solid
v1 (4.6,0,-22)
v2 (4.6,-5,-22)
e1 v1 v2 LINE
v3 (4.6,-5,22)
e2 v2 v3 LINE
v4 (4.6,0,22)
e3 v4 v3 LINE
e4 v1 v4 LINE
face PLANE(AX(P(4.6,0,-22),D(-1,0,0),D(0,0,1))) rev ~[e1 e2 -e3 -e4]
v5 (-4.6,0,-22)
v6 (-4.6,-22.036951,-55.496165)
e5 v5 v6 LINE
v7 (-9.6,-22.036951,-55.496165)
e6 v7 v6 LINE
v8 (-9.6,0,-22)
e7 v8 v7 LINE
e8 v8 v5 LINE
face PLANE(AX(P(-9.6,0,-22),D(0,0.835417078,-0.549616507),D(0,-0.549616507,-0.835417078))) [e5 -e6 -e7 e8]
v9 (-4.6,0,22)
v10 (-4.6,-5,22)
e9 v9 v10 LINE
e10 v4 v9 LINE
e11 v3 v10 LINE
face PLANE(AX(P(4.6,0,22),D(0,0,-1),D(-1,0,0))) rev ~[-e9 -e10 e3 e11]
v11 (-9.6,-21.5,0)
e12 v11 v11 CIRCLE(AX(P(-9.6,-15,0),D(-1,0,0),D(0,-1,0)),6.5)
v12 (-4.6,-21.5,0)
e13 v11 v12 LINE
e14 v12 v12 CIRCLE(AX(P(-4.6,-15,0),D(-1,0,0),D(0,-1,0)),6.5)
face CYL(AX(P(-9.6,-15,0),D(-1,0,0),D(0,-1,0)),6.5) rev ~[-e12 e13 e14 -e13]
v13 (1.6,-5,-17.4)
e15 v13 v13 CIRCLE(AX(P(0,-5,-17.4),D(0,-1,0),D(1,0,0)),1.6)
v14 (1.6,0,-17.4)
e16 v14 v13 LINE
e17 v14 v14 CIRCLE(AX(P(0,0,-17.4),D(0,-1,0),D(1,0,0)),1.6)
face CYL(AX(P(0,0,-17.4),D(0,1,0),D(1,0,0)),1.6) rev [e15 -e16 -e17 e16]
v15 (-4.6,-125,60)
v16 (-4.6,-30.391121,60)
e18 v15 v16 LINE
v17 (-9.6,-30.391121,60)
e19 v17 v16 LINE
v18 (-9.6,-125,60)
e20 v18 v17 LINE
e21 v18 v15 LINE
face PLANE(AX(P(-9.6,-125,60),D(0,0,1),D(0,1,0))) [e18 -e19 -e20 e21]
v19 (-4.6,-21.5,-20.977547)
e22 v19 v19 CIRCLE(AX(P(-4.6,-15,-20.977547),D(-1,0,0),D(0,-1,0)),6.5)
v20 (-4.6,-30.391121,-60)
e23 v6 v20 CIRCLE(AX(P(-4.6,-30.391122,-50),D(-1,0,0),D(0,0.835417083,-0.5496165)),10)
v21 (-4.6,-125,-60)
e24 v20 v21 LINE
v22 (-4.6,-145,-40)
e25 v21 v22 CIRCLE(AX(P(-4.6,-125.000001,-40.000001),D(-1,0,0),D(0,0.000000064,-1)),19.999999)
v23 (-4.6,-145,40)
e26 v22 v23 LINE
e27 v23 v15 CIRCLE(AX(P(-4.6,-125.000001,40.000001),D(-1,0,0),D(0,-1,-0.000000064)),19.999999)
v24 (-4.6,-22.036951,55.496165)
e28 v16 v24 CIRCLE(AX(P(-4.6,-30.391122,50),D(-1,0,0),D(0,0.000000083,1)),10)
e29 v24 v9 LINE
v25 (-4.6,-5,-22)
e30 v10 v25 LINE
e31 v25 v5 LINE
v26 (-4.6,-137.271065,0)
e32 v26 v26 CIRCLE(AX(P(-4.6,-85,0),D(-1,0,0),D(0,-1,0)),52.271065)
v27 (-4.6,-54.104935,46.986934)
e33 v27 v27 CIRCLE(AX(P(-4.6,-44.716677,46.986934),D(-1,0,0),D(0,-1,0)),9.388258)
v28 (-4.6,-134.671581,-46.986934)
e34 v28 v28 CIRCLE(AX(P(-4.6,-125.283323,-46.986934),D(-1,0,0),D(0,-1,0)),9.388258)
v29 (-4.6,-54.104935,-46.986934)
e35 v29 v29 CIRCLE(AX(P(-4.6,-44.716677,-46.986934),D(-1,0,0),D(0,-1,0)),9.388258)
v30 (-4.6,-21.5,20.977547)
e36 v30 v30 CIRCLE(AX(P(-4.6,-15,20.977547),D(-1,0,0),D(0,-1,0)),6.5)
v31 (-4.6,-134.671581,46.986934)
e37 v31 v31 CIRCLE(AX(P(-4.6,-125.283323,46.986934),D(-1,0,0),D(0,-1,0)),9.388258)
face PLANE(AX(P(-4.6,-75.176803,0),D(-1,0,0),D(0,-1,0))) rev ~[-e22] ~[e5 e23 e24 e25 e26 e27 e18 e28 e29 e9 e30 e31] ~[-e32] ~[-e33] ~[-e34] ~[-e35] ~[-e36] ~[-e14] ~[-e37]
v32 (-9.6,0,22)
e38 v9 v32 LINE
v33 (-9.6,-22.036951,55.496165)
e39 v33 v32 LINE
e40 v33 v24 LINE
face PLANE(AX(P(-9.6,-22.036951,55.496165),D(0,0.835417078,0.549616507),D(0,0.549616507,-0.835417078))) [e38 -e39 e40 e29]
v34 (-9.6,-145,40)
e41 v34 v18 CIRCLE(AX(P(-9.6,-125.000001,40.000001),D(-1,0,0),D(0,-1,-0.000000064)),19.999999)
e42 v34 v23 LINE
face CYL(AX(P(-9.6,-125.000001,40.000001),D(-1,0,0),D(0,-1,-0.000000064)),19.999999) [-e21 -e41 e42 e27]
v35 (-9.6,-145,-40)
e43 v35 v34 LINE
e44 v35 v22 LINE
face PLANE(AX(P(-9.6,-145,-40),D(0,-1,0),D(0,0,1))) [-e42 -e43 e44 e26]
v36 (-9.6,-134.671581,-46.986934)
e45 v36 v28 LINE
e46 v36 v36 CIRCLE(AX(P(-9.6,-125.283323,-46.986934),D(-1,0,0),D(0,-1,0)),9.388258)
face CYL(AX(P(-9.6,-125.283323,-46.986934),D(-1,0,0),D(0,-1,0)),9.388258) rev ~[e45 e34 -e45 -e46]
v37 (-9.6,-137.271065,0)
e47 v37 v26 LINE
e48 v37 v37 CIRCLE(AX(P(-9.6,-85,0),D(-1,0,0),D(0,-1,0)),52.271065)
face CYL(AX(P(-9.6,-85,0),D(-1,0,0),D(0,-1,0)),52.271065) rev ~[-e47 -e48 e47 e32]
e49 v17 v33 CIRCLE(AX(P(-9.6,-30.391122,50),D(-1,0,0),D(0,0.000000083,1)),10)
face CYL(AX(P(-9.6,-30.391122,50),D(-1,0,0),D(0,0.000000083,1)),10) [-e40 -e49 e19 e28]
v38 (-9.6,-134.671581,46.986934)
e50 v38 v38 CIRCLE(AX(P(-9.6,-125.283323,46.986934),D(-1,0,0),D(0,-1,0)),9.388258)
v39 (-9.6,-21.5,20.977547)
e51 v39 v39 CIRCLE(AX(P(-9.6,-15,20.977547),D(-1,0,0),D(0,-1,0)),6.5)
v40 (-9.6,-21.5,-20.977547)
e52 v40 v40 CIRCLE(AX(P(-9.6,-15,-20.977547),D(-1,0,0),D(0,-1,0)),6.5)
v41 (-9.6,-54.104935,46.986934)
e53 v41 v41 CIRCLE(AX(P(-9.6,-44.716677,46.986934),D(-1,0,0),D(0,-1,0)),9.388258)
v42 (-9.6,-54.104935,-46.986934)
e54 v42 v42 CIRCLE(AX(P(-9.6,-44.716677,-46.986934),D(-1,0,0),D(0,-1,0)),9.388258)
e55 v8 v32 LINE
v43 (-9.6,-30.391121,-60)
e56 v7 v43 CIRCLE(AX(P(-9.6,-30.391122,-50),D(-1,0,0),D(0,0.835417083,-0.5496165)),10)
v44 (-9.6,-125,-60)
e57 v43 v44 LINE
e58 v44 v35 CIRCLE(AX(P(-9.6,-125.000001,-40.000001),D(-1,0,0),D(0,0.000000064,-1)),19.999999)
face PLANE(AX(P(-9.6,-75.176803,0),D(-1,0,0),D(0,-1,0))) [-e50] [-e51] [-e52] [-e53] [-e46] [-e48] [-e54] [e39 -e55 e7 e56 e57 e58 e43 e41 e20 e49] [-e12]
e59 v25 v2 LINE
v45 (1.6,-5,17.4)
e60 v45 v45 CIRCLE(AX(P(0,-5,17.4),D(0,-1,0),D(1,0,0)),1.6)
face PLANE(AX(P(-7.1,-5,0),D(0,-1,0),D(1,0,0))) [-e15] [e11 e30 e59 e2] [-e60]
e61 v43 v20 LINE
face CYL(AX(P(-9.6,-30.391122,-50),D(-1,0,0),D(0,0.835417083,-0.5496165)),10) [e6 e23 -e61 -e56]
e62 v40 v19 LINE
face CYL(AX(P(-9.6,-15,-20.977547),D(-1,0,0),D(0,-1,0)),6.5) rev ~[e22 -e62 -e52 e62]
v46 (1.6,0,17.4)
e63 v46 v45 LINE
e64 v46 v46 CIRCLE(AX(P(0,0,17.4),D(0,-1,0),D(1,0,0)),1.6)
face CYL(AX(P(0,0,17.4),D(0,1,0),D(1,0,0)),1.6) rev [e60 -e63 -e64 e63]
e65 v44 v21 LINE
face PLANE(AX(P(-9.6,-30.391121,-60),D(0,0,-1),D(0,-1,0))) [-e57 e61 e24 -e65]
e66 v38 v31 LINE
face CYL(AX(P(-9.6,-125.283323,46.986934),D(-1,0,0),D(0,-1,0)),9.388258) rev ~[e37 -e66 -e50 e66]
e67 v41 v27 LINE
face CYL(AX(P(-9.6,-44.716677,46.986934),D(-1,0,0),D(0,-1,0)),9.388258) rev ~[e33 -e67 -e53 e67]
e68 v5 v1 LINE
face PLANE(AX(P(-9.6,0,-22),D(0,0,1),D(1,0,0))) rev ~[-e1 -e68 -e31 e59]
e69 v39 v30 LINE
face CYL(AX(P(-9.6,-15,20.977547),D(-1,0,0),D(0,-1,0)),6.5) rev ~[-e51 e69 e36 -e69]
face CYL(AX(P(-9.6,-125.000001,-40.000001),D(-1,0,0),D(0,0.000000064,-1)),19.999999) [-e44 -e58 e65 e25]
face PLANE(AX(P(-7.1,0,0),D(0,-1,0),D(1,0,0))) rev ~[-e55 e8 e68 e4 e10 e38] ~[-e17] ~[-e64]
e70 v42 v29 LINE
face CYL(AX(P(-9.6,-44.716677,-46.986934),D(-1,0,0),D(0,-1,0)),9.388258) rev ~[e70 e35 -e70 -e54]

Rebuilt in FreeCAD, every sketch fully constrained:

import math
import FreeCAD as App
import Part
import Sketcher
Q = App.Units.Quantity

doc = App.newDocument("Part")
params = doc.addObject("Spreadsheet::Sheet", "Params")
for row, (alias, value) in enumerate([
    ("sketch1_diameter", "3.2 mm"),
    ("sketch1_height", "44 mm"),
    ("sketch1_width", "14.2 mm"),
    ("pad1_length", "5 mm"),
    ("sketch2_diameter", "13 mm"),
    ("sketch2_radius", "10 mm"),
    ("sketch2_radius2", "19.999999 mm"),
    ("sketch2_width", "5 mm"),
    ("sketch2_height", "44 mm"),
    ("pad2_length", "5 mm"),
], start=1):
    params.set(f"A{row}", alias)
    params.set(f"B{row}", "=" + value)
    params.setAlias(f"B{row}", alias)

body = doc.addObject("PartDesign::Body", "Body")

sketch1 = body.newObject("Sketcher::SketchObject", "Sketch")
sketch1.AttachmentSupport = (doc.getObject("XZ_Plane"), [""])
sketch1.MapMode = "FlatFace"
sketch1.addGeometry(Part.LineSegment(App.Vector(-9.6, 22, 0), App.Vector(-9.6, -22, 0)), False)
sketch1.addGeometry(Part.LineSegment(App.Vector(-9.6, -22, 0), App.Vector(4.6, -22, 0)), False)
sketch1.addGeometry(Part.LineSegment(App.Vector(4.6, -22, 0), App.Vector(4.6, 22, 0)), False)
sketch1.addGeometry(Part.LineSegment(App.Vector(4.6, 22, 0), App.Vector(-9.6, 22, 0)), False)
sketch1.addGeometry(Part.Circle(App.Vector(0, -17.4, 0), App.Vector(0, 0, 1), 1.6), False)
sketch1.addGeometry(Part.Circle(App.Vector(0, 17.4, 0), App.Vector(0, 0, 1), 1.6), False)
sketch1.addConstraint(Sketcher.Constraint("Coincident", 0, 2, 1, 1))
sketch1.addConstraint(Sketcher.Constraint("Coincident", 1, 2, 2, 1))
sketch1.addConstraint(Sketcher.Constraint("Coincident", 2, 2, 3, 1))
sketch1.addConstraint(Sketcher.Constraint("Coincident", 3, 2, 0, 1))
sketch1.addConstraint(Sketcher.Constraint("Vertical", 0))
sketch1.addConstraint(Sketcher.Constraint("Horizontal", 1))
sketch1.addConstraint(Sketcher.Constraint("Vertical", 2))
sketch1.addConstraint(Sketcher.Constraint("Horizontal", 3))
sketch1.addConstraint(Sketcher.Constraint("Equal", 4, 5))
sketch1.addConstraint(Sketcher.Constraint("Symmetric", 4, 3, 5, 3, -1, 1))
sketch1.addConstraint(Sketcher.Constraint("PointOnObject", 4, 3, -2))
sketch1.addConstraint(Sketcher.Constraint("Diameter", 4, Q("3.2 mm")))
sketch1.addConstraint(Sketcher.Constraint("DistanceY", 0, 2, 0, 1, Q("44 mm")))
sketch1.addConstraint(Sketcher.Constraint("DistanceX", 1, 1, 1, 2, Q("14.2 mm")))
sketch1.addConstraint(Sketcher.Constraint("DistanceY", 0, 2, -1, 1, Q("22 mm")))
sketch1.addConstraint(Sketcher.Constraint("DistanceY", 4, 3, -1, 1, Q("17.4 mm")))
sketch1.addConstraint(Sketcher.Constraint("DistanceX", 0, 2, -1, 1, Q("9.6 mm")))
sketch1.setExpression("Constraints[11]", "Params.sketch1_diameter")
sketch1.setExpression("Constraints[12]", "Params.sketch1_height")
sketch1.setExpression("Constraints[13]", "Params.sketch1_width")
pad1 = body.newObject("PartDesign::Pad", "Pad")
pad1.Profile = sketch1
pad1.setExpression("Length", "Params.pad1_length")

sketch2 = body.newObject("Sketcher::SketchObject", "Sketch001")
sketch2.AttachmentSupport = (doc.getObject("YZ_Plane"), [""])
sketch2.MapMode = "FlatFace"
sketch2.AttachmentOffset = App.Placement(App.Vector(0, 0, -9.6), App.Rotation())
sketch2.addGeometry(Part.LineSegment(App.Vector(-125, 60, 0), App.Vector(-30.391121, 60, 0)), False)
sketch2.addGeometry(Part.ArcOfCircle(Part.Circle(App.Vector(-30.391122, 50, 0), App.Vector(0, 0, 1), 10), math.radians(33.340707), math.radians(89.999995)), False)
sketch2.addGeometry(Part.LineSegment(App.Vector(-22.036951, 55.496165, 0), App.Vector(0, 22, 0)), False)
sketch2.addGeometry(Part.LineSegment(App.Vector(0, 22, 0), App.Vector(-5, 22, 0)), False)
sketch2.addGeometry(Part.LineSegment(App.Vector(-5, 22, 0), App.Vector(-5, -22, 0)), False)
sketch2.addGeometry(Part.LineSegment(App.Vector(-5, -22, 0), App.Vector(0, -22, 0)), False)
sketch2.addGeometry(Part.LineSegment(App.Vector(0, -22, 0), App.Vector(-22.036951, -55.496165, 0)), False)
sketch2.addGeometry(Part.ArcOfCircle(Part.Circle(App.Vector(-30.391122, -50, 0), App.Vector(0, 0, 1), 10), math.radians(-89.999995), math.radians(-33.340707)), False)
sketch2.addGeometry(Part.LineSegment(App.Vector(-30.391121, -60, 0), App.Vector(-125, -60, 0)), False)
sketch2.addGeometry(Part.ArcOfCircle(Part.Circle(App.Vector(-125.000001, -40.000001, 0), App.Vector(0, 0, 1), 19.999999), math.radians(179.999996), math.radians(270.000004)), False)
sketch2.addGeometry(Part.LineSegment(App.Vector(-145, -40, 0), App.Vector(-145, 40, 0)), False)
sketch2.addGeometry(Part.ArcOfCircle(Part.Circle(App.Vector(-125.000001, 40.000001, 0), App.Vector(0, 0, 1), 19.999999), math.radians(89.999996), math.radians(180.000004)), False)
sketch2.addGeometry(Part.Circle(App.Vector(-44.716677, -46.986934, 0), App.Vector(0, 0, 1), 9.388258), False)
sketch2.addGeometry(Part.Circle(App.Vector(-15, -20.977547, 0), App.Vector(0, 0, 1), 6.5), False)
sketch2.addGeometry(Part.Circle(App.Vector(-125.283323, -46.986934, 0), App.Vector(0, 0, 1), 9.388258), False)
sketch2.addGeometry(Part.Circle(App.Vector(-15, 0, 0), App.Vector(0, 0, 1), 6.5), False)
sketch2.addGeometry(Part.Circle(App.Vector(-15, 20.977547, 0), App.Vector(0, 0, 1), 6.5), False)
sketch2.addGeometry(Part.Circle(App.Vector(-44.716677, 46.986934, 0), App.Vector(0, 0, 1), 9.388258), False)
sketch2.addGeometry(Part.Circle(App.Vector(-85, 0, 0), App.Vector(0, 0, 1), 52.271065), False)
sketch2.addGeometry(Part.Circle(App.Vector(-125.283323, 46.986934, 0), App.Vector(0, 0, 1), 9.388258), False)
sketch2.addConstraint(Sketcher.Constraint("Tangent", 0, 2, 1, 2))
sketch2.addConstraint(Sketcher.Constraint("Tangent", 1, 1, 2, 1))
sketch2.addConstraint(Sketcher.Constraint("Coincident", 2, 2, 3, 1))
sketch2.addConstraint(Sketcher.Constraint("Coincident", 3, 2, 4, 1))
sketch2.addConstraint(Sketcher.Constraint("Coincident", 4, 2, 5, 1))
sketch2.addConstraint(Sketcher.Constraint("Coincident", 5, 2, 6, 1))
sketch2.addConstraint(Sketcher.Constraint("Tangent", 6, 2, 7, 2))
sketch2.addConstraint(Sketcher.Constraint("Tangent", 7, 1, 8, 1))
sketch2.addConstraint(Sketcher.Constraint("Tangent", 8, 2, 9, 2))
sketch2.addConstraint(Sketcher.Constraint("Tangent", 9, 1, 10, 1))
sketch2.addConstraint(Sketcher.Constraint("Tangent", 10, 2, 11, 2))
sketch2.addConstraint(Sketcher.Constraint("Tangent", 11, 1, 0, 1))
sketch2.addConstraint(Sketcher.Constraint("Horizontal", 0))
sketch2.addConstraint(Sketcher.Constraint("Horizontal", 3))
sketch2.addConstraint(Sketcher.Constraint("Vertical", 4))
sketch2.addConstraint(Sketcher.Constraint("Horizontal", 5))
sketch2.addConstraint(Sketcher.Constraint("Horizontal", 8))
sketch2.addConstraint(Sketcher.Constraint("Vertical", 10))
sketch2.addConstraint(Sketcher.Constraint("Equal", 1, 7))
sketch2.addConstraint(Sketcher.Constraint("Equal", 9, 11))
sketch2.addConstraint(Sketcher.Constraint("Equal", 12, 14))
sketch2.addConstraint(Sketcher.Constraint("Equal", 13, 15))
sketch2.addConstraint(Sketcher.Constraint("Equal", 15, 16))
sketch2.addConstraint(Sketcher.Constraint("Equal", 14, 17))
sketch2.addConstraint(Sketcher.Constraint("Equal", 17, 19))
sketch2.addConstraint(Sketcher.Constraint("Symmetric", 2, 2, 5, 2, -1, 1))
sketch2.addConstraint(Sketcher.Constraint("Symmetric", 1, 3, 7, 3, -1))
sketch2.addConstraint(Sketcher.Constraint("Symmetric", 13, 3, 16, 3, -1))
sketch2.addConstraint(Sketcher.Constraint("Symmetric", 12, 3, 17, 3, -1))
sketch2.addConstraint(Sketcher.Constraint("Symmetric", 14, 3, 19, 3, -1))
sketch2.addConstraint(Sketcher.Constraint("PointOnObject", 15, 3, -1))
sketch2.addConstraint(Sketcher.Constraint("PointOnObject", 18, 3, -1))
sketch2.addConstraint(Sketcher.Constraint("PointOnObject", 2, 2, -2))
sketch2.addConstraint(Sketcher.Constraint("Horizontal", 12, 3, 14, 3))
sketch2.addConstraint(Sketcher.Constraint("Vertical", 13, 3, 15, 3))
sketch2.addConstraint(Sketcher.Constraint("Diameter", 13, Q("13 mm")))
sketch2.addConstraint(Sketcher.Constraint("Radius", 1, Q("10 mm")))
sketch2.addConstraint(Sketcher.Constraint("Radius", 9, Q("19.999999 mm")))
sketch2.addConstraint(Sketcher.Constraint("DistanceX", 3, 2, 3, 1, Q("5 mm")))
sketch2.addConstraint(Sketcher.Constraint("DistanceY", 4, 2, 4, 1, Q("44 mm")))
sketch2.addConstraint(Sketcher.Constraint("DistanceY", 10, 1, 10, 2, Q("80 mm")))
sketch2.addConstraint(Sketcher.Constraint("DistanceX", 9, 3, -1, 1, Q("125.000001 mm")))
sketch2.addConstraint(Sketcher.Constraint("DistanceX", 13, 3, -1, 1, Q("15 mm")))
sketch2.addConstraint(Sketcher.Constraint("DistanceX", 18, 3, -1, 1, Q("85 mm")))
sketch2.addConstraint(Sketcher.Constraint("Diameter", 18, Q("104.54213 mm")))
sketch2.addConstraint(Sketcher.Constraint("Diameter", 12, Q("18.776516 mm")))
sketch2.addConstraint(Sketcher.Constraint("DistanceX", 0, 1, 0, 2, Q("94.608879 mm")))
sketch2.addConstraint(Sketcher.Constraint("DistanceX", 14, 3, 7, 3, Q("94.892201 mm")))
sketch2.addConstraint(Sketcher.Constraint("DistanceY", 13, 3, 11, 3, Q("60.977548 mm")))
sketch2.addConstraint(Sketcher.Constraint("DistanceY", 12, 3, 16, 3, Q("67.964481 mm")))
sketch2.addConstraint(Sketcher.Constraint("DistanceX", 12, 3, -1, 1, Q("44.716677 mm")))
sketch2.setExpression("Constraints[35]", "Params.sketch2_diameter")
sketch2.setExpression("Constraints[36]", "Params.sketch2_radius")
sketch2.setExpression("Constraints[37]", "Params.sketch2_radius2")
sketch2.setExpression("Constraints[38]", "Params.sketch2_width")
sketch2.setExpression("Constraints[39]", "Params.sketch2_height")
pad2 = body.newObject("PartDesign::Pad", "Pad001")
pad2.Profile = sketch2
pad2.setExpression("Length", "Params.pad2_length")

doc.recompute()
